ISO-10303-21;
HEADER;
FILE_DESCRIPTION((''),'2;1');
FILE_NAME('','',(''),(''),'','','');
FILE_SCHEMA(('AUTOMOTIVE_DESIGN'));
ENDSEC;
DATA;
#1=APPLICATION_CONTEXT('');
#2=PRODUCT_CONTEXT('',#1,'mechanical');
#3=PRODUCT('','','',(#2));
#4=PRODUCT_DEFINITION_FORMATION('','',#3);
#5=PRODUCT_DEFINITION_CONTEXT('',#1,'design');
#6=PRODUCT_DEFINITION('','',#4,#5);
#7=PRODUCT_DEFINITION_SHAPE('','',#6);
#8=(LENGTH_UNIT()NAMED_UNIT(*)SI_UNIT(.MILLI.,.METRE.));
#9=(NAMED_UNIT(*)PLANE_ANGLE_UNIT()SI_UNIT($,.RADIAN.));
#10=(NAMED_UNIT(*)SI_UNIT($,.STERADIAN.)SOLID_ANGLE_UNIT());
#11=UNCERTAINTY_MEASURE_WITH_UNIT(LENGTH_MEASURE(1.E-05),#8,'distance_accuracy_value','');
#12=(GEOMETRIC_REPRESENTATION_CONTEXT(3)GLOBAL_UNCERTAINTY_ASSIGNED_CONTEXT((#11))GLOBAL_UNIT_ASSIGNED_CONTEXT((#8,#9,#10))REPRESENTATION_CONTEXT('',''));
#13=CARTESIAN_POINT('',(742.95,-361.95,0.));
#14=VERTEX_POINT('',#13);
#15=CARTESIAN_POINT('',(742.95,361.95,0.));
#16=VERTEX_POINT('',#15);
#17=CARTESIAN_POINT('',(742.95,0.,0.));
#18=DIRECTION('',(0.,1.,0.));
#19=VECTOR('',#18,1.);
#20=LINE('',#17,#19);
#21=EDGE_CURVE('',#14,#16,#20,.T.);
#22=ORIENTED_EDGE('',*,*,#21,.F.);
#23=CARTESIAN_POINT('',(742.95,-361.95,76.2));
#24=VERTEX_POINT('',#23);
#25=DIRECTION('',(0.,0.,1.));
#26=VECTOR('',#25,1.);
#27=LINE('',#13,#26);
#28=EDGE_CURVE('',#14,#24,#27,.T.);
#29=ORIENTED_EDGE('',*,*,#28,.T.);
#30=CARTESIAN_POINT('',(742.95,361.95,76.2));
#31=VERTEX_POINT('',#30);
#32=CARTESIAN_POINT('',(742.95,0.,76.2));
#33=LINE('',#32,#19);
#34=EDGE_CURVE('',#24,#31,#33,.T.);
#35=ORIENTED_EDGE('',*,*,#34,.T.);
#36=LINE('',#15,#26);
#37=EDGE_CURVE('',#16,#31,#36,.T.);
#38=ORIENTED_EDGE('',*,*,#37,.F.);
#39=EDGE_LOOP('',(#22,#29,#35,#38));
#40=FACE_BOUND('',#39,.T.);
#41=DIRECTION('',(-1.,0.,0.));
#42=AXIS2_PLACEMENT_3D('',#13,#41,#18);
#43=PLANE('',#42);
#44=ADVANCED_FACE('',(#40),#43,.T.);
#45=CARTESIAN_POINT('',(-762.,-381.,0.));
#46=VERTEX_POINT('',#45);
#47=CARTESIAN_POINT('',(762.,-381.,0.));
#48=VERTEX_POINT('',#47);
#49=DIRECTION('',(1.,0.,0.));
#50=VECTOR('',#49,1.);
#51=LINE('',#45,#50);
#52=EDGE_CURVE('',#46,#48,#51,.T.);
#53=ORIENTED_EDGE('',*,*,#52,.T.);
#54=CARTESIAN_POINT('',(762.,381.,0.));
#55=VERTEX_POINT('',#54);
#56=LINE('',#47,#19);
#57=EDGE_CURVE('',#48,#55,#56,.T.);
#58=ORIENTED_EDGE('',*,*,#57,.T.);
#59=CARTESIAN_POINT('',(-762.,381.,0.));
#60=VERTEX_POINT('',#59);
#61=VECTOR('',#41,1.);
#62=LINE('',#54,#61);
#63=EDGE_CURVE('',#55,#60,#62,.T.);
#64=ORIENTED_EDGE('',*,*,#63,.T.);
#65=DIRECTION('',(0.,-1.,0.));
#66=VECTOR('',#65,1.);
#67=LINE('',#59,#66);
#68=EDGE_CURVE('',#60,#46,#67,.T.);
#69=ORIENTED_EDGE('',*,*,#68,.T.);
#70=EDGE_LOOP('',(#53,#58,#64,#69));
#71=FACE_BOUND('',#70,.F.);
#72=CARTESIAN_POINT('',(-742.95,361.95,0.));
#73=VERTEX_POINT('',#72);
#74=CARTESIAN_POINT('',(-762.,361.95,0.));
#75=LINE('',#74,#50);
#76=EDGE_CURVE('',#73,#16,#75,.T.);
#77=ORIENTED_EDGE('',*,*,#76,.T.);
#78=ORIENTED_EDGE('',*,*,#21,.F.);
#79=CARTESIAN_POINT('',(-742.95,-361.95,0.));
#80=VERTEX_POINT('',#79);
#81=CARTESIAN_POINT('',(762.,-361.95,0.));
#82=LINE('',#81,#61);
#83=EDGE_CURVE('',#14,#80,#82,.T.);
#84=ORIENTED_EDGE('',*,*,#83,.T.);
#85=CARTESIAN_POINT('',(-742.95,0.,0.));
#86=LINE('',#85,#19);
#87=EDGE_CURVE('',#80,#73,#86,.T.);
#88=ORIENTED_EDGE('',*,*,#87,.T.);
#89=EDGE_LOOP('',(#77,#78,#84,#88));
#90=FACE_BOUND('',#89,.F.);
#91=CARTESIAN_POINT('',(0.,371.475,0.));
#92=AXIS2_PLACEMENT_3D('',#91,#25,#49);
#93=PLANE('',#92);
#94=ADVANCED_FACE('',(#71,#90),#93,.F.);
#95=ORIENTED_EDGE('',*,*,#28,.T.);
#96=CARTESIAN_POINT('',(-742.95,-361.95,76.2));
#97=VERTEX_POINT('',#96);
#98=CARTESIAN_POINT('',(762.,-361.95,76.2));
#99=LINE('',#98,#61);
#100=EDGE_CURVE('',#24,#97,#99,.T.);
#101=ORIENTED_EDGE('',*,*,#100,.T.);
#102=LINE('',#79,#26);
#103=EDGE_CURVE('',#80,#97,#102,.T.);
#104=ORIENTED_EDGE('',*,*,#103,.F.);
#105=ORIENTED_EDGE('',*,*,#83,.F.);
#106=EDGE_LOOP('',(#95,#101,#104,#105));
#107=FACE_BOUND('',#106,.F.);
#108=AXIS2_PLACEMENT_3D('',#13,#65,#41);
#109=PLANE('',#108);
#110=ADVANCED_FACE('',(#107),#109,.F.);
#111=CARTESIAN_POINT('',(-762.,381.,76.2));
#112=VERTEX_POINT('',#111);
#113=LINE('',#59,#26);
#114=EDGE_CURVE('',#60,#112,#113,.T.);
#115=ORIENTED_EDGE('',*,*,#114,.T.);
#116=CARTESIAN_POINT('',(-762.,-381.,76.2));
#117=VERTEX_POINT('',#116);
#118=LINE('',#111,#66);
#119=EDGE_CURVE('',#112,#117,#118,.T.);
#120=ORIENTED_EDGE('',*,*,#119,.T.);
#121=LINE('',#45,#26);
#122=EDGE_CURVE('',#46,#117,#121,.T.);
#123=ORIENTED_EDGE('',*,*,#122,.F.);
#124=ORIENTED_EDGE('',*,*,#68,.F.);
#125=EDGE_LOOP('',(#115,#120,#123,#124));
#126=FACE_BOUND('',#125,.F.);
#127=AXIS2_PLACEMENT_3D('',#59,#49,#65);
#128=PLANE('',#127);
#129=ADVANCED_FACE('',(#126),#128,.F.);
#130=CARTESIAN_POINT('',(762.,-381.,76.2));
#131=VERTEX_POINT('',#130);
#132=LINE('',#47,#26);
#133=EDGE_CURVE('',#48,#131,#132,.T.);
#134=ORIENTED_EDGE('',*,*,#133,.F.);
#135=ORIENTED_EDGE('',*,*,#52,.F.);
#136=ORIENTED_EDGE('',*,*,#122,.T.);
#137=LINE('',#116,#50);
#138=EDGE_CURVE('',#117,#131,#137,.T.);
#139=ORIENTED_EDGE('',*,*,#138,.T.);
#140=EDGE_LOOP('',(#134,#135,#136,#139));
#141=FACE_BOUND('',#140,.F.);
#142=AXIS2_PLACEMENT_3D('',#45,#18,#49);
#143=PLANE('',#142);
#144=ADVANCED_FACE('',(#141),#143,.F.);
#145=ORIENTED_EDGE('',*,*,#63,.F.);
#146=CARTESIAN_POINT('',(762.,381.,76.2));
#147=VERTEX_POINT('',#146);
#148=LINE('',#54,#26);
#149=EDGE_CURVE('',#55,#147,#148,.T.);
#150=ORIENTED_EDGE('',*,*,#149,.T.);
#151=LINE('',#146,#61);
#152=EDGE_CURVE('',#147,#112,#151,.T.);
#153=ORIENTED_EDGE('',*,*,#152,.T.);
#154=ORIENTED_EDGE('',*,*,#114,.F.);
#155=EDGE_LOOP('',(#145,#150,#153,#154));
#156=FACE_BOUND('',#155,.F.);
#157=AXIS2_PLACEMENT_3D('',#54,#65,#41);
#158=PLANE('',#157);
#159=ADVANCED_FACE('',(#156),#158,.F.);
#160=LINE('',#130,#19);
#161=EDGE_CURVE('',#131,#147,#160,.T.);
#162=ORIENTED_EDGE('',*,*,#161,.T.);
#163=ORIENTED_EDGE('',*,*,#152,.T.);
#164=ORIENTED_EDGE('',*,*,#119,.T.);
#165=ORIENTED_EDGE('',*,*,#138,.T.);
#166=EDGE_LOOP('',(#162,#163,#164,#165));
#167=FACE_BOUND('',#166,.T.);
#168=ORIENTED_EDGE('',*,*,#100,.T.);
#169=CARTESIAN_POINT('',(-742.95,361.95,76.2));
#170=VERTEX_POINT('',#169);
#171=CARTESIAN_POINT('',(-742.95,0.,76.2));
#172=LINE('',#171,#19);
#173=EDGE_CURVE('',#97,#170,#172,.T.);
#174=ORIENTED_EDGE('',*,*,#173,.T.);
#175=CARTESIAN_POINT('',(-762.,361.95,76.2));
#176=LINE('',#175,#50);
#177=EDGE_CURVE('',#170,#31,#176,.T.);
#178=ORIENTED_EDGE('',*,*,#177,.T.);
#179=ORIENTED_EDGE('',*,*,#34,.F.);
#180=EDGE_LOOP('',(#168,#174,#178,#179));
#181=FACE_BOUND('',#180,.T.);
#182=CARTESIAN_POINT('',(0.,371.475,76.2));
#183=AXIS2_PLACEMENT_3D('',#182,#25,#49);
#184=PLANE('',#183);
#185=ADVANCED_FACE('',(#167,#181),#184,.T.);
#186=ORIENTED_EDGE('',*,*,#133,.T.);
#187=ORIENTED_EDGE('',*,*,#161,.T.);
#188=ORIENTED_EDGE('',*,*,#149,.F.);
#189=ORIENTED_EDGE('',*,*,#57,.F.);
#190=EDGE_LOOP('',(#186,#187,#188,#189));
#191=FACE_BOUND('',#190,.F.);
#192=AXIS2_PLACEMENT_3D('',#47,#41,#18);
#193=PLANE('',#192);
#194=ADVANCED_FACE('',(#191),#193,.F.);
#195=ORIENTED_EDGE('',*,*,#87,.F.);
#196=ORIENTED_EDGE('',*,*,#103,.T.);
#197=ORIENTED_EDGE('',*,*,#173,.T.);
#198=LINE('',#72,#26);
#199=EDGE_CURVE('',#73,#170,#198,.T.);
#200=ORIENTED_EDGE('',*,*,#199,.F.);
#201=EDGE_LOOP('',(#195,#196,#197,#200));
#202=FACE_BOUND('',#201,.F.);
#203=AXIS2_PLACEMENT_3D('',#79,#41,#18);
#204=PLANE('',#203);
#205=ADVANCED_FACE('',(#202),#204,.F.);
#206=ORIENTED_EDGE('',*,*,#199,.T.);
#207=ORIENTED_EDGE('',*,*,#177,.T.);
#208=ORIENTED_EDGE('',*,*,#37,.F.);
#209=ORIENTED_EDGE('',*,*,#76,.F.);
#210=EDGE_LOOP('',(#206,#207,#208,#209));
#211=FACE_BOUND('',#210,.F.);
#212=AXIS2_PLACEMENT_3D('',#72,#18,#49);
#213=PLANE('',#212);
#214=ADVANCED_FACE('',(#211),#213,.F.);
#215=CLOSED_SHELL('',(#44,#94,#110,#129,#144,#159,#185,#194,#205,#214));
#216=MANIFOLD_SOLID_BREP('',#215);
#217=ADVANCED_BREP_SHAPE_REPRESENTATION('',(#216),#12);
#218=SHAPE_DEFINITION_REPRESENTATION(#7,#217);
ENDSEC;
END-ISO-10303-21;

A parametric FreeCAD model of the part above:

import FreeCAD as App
import Part
import Sketcher

V = App.Vector
Q = App.Units.Quantity


def add_polygon(sketch, points):
    """Adds a closed chain of lines whose ends are joined by coincident constraints."""
    first, n = sketch.GeometryCount, len(points)
    for a, b in zip(points, points[1:] + points[:1]):
        sketch.addGeometry(Part.LineSegment(App.Vector(*a, 0), App.Vector(*b, 0)), False)
    for i in range(n):
        sketch.addConstraint(Sketcher.Constraint("Coincident", first + i, 2, first + (i + 1) % n, 1))

doc = App.newDocument("Part")
body = doc.addObject("PartDesign::Body", "Body")

sketch1 = body.newObject("Sketcher::SketchObject", "Sketch")
sketch1.AttachmentSupport = (doc.getObject("XY_Plane"), [""])
sketch1.MapMode = "FlatFace"
add_polygon(sketch1, [(762, 381), (-762, 381), (-762, -381), (762, -381)])
add_polygon(sketch1, [(742.95, -361.95), (-742.95, -361.95), (-742.95, 361.95), (742.95, 361.95)])
sketch1.addConstraint(Sketcher.Constraint("Horizontal", 0))
sketch1.addConstraint(Sketcher.Constraint("Vertical", 1))
sketch1.addConstraint(Sketcher.Constraint("Horizontal", 2))
sketch1.addConstraint(Sketcher.Constraint("Vertical", 3))
sketch1.addConstraint(Sketcher.Constraint("Horizontal", 4))
sketch1.addConstraint(Sketcher.Constraint("Vertical", 5))
sketch1.addConstraint(Sketcher.Constraint("Horizontal", 6))
sketch1.addConstraint(Sketcher.Constraint("Vertical", 7))
sketch1.addConstraint(Sketcher.Constraint("Symmetric", 0, 2, 2, 2, -1, 1))
sketch1.addConstraint(Sketcher.Constraint("Symmetric", 4, 2, 6, 2, -1, 1))
sketch1.addConstraint(Sketcher.Constraint("DistanceX", 0, 2, 0, 1, Q("60 in")))
sketch1.addConstraint(Sketcher.Constraint("DistanceY", 1, 2, 1, 1, Q("30 in")))
sketch1.addConstraint(Sketcher.Constraint("DistanceX", 4, 2, 4, 1, Q("58.5 in")))
sketch1.addConstraint(Sketcher.Constraint("DistanceY", 5, 1, 5, 2, Q("28.5 in")))
pad1 = body.newObject("PartDesign::Pad", "Pad")
pad1.Profile = sketch1
pad1.Length = Q("3 in")

doc.recompute()
